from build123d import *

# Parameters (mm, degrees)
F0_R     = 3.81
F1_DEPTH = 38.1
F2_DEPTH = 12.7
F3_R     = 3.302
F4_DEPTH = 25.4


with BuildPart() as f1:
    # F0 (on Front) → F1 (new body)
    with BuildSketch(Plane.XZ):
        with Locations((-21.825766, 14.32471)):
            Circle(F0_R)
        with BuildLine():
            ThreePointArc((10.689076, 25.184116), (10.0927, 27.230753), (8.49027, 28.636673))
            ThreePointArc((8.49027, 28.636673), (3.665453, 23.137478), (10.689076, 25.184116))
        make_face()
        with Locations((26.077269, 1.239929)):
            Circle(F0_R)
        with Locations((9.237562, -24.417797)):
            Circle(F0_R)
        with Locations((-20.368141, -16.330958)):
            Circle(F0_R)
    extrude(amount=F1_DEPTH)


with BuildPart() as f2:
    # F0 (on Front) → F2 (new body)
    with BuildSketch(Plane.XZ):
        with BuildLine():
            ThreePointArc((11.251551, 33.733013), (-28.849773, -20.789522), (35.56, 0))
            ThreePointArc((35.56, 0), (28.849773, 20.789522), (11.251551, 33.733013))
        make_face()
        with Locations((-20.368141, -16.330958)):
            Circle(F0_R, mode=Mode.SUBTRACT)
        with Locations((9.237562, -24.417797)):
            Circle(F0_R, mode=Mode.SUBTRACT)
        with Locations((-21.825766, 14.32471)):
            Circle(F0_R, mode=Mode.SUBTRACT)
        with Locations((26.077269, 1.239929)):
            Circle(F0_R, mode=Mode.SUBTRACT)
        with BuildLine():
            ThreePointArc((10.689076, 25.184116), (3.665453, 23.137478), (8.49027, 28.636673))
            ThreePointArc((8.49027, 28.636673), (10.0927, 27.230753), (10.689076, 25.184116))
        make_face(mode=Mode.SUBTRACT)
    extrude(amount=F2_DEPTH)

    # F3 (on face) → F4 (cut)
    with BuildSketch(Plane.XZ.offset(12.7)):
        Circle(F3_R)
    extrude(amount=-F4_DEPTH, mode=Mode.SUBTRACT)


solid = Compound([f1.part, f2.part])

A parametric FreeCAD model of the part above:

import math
import FreeCAD as App
import Part
import Sketcher

V = App.Vector
Q = App.Units.Quantity

doc = App.newDocument("Part")
body = doc.addObject("PartDesign::Body", "Body")
body.AllowCompound = True

# Sketch on XZ plane
sketch1 = body.newObject("Sketcher::SketchObject", "Sketch")
sketch1.AttachmentSupport = (doc.getObject("XZ_Plane"), [""])
sketch1.MapMode = "FlatFace"
sketch1.addGeometry([
    Part.Circle(V(-21.8, 14.3, 0), V(0, 0, 1), 3.8),  # 0
    Part.ArcOfCircle(Part.Circle(V(6.9, 25.2, 0), V(0, 0, 1), 3.8), math.radians(0), math.radians(65)),  # 1
    Part.ArcOfCircle(Part.Circle(V(6.9, 25.2, 0), V(0, 0, 1), 3.8), math.radians(65), math.radians(360)),  # 2
    Part.Circle(V(26.1, 1.2, 0), V(0, 0, 1), 3.8),  # 3
    Part.Circle(V(9.2, -24.4, 0), V(0, 0, 1), 3.8),  # 4
    Part.Circle(V(-20.4, -16.3, 0), V(0, 0, 1), 3.8),  # 5
], False)
sketch1.addConstraint([
    Sketcher.Constraint("Tangent", 1, 1, 2, 2),
    Sketcher.Constraint("Coincident", 2, 1, 1, 2),
    Sketcher.Constraint("Equal", 0, 2),
    Sketcher.Constraint("Equal", 2, 3),
    Sketcher.Constraint("Equal", 3, 4),
    Sketcher.Constraint("Equal", 4, 5),
    Sketcher.Constraint("Horizontal", 2, 3, 1, 1),
    Sketcher.Constraint("Diameter", 0, Q("0.3 in")),
    Sketcher.Constraint("DistanceX", 2, 1, 3, 3, 17.586999),
    Sketcher.Constraint("DistanceY", -1, 1, 0, 3, 14.32471),
    Sketcher.Constraint("DistanceX", -1, 1, 1, 3, 6.879079),
    Sketcher.Constraint("DistanceX", -1, 1, 3, 3, 26.077269),
    Sketcher.Constraint("DistanceY", -1, 1, 3, 3, 1.239929),
    Sketcher.Constraint("DistanceX", 5, 3, -1, 1, 20.368141),
    Sketcher.Constraint("DistanceY", 3, 3, 1, 3, 23.944188),
    Sketcher.Constraint("DistanceX", 0, 3, 4, 3, 31.063328),
    Sketcher.Constraint("DistanceY", 4, 3, 5, 3, 8.086839),
    Sketcher.Constraint("DistanceX", 0, 3, 1, 1, 32.514842),
    Sketcher.Constraint("DistanceY", 4, 3, -1, 1, 24.417797),
])
pad1 = body.newObject("PartDesign::Pad", "Pad")
pad1.Profile = sketch1
pad1.Length = Q("1.5 in")
body2 = doc.addObject("PartDesign::Body", "Body001")

# Sketch on XZ plane
sketch2 = body2.newObject("Sketcher::SketchObject", "Sketch001")
sketch2.AttachmentSupport = (doc.getObject("XZ_Plane001"), [""])
sketch2.MapMode = "FlatFace"
sketch2.addGeometry([
    Part.ArcOfCircle(Part.Circle(V(0, 0, 0), V(0, 0, 1), 35.6), math.radians(72), math.radians(360)),  # 0
    Part.ArcOfCircle(Part.Circle(V(0, 0, 0), V(0, 0, 1), 35.6), math.radians(0), math.radians(72)),  # 1
    Part.Circle(V(-20.4, -16.3, 0), V(0, 0, 1), 3.8),  # 2
    Part.Circle(V(9.2, -24.4, 0), V(0, 0, 1), 3.8),  # 3
    Part.Circle(V(-21.8, 14.3, 0), V(0, 0, 1), 3.8),  # 4
    Part.Circle(V(26.1, 1.2, 0), V(0, 0, 1), 3.8),  # 5
    Part.ArcOfCircle(Part.Circle(V(6.9, 25.2, 0), V(0, 0, 1), 3.8), math.radians(0), math.radians(65)),  # 6
    Part.ArcOfCircle(Part.Circle(V(6.9, 25.2, 0), V(0, 0, 1), 3.8), math.radians(65), math.radians(360)),  # 7
], False)
sketch2.addConstraint([
    Sketcher.Constraint("Tangent", 0, 1, 1, 2),
    Sketcher.Constraint("Coincident", 1, 1, 0, 2),
    Sketcher.Constraint("Tangent", 6, 1, 7, 2),
    Sketcher.Constraint("Coincident", 7, 1, 6, 2),
    Sketcher.Constraint("Coincident", 0, 3, -1, 1),
    Sketcher.Constraint("Equal", 2, 3),
    Sketcher.Constraint("Equal", 3, 4),
    Sketcher.Constraint("Equal", 4, 5),
    Sketcher.Constraint("Equal", 5, 7),
    Sketcher.Constraint("PointOnObject", 1, 1, -1),
    Sketcher.Constraint("Horizontal", 7, 3, 6, 1),
    Sketcher.Constraint("Diameter", 2, Q("0.3 in")),
    Sketcher.Constraint("Radius", 0, Q("1.4 in")),
    Sketcher.Constraint("DistanceY", 3, 3, 1, 3, 24.417799),
    Sketcher.Constraint("DistanceX", 2, 3, -1, 1, 20.368141),
    Sketcher.Constraint("DistanceY", -1, 1, 4, 3, 14.32471),
    Sketcher.Constraint("DistanceX", -1, 1, 5, 3, 26.077269),
    Sketcher.Constraint("DistanceY", -1, 1, 5, 3, 1.239929),
    Sketcher.Constraint("DistanceX", -1, 1, 6, 3, 6.879079),
    Sketcher.Constraint("DistanceX", -1, 1, 0, 1, 11.251551),
    Sketcher.Constraint("DistanceX", -1, 1, 7, 1, 8.49027),
    Sketcher.Constraint("DistanceY", 2, 3, 1, 3, 16.33096),
    Sketcher.Constraint("DistanceX", 1, 3, 3, 3, 9.237559),
    Sketcher.Constraint("DistanceX", 4, 3, 1, 3, 21.825769),
    Sketcher.Constraint("DistanceY", 0, 3, 6, 3, 25.184118),
])
pad2 = body2.newObject("PartDesign::Pad", "Pad001")
pad2.Profile = sketch2
pad2.Length = Q("0.5 in")

# Sketch on XZ plane
sketch3 = body2.newObject("Sketcher::SketchObject", "Sketch002")
sketch3.AttachmentSupport = (doc.getObject("XZ_Plane001"), [""])
sketch3.MapMode = "FlatFace"
sketch3.AttachmentOffset = App.Placement(V(0, 0, 0.5 * 25.4), App.Rotation())
sketch3.addGeometry(Part.Circle(V(0, 0, 0), V(0, 0, 1), 3.3), False)
sketch3.addConstraint([
    Sketcher.Constraint("Coincident", 0, 3, -1, 1),
    Sketcher.Constraint("Diameter", 0, Q("0.26 in")),
])
pocket1 = body2.newObject("PartDesign::Pocket", "Pocket")
pocket1.Profile = sketch3
pocket1.Length = Q("1 in")

doc.recompute()
